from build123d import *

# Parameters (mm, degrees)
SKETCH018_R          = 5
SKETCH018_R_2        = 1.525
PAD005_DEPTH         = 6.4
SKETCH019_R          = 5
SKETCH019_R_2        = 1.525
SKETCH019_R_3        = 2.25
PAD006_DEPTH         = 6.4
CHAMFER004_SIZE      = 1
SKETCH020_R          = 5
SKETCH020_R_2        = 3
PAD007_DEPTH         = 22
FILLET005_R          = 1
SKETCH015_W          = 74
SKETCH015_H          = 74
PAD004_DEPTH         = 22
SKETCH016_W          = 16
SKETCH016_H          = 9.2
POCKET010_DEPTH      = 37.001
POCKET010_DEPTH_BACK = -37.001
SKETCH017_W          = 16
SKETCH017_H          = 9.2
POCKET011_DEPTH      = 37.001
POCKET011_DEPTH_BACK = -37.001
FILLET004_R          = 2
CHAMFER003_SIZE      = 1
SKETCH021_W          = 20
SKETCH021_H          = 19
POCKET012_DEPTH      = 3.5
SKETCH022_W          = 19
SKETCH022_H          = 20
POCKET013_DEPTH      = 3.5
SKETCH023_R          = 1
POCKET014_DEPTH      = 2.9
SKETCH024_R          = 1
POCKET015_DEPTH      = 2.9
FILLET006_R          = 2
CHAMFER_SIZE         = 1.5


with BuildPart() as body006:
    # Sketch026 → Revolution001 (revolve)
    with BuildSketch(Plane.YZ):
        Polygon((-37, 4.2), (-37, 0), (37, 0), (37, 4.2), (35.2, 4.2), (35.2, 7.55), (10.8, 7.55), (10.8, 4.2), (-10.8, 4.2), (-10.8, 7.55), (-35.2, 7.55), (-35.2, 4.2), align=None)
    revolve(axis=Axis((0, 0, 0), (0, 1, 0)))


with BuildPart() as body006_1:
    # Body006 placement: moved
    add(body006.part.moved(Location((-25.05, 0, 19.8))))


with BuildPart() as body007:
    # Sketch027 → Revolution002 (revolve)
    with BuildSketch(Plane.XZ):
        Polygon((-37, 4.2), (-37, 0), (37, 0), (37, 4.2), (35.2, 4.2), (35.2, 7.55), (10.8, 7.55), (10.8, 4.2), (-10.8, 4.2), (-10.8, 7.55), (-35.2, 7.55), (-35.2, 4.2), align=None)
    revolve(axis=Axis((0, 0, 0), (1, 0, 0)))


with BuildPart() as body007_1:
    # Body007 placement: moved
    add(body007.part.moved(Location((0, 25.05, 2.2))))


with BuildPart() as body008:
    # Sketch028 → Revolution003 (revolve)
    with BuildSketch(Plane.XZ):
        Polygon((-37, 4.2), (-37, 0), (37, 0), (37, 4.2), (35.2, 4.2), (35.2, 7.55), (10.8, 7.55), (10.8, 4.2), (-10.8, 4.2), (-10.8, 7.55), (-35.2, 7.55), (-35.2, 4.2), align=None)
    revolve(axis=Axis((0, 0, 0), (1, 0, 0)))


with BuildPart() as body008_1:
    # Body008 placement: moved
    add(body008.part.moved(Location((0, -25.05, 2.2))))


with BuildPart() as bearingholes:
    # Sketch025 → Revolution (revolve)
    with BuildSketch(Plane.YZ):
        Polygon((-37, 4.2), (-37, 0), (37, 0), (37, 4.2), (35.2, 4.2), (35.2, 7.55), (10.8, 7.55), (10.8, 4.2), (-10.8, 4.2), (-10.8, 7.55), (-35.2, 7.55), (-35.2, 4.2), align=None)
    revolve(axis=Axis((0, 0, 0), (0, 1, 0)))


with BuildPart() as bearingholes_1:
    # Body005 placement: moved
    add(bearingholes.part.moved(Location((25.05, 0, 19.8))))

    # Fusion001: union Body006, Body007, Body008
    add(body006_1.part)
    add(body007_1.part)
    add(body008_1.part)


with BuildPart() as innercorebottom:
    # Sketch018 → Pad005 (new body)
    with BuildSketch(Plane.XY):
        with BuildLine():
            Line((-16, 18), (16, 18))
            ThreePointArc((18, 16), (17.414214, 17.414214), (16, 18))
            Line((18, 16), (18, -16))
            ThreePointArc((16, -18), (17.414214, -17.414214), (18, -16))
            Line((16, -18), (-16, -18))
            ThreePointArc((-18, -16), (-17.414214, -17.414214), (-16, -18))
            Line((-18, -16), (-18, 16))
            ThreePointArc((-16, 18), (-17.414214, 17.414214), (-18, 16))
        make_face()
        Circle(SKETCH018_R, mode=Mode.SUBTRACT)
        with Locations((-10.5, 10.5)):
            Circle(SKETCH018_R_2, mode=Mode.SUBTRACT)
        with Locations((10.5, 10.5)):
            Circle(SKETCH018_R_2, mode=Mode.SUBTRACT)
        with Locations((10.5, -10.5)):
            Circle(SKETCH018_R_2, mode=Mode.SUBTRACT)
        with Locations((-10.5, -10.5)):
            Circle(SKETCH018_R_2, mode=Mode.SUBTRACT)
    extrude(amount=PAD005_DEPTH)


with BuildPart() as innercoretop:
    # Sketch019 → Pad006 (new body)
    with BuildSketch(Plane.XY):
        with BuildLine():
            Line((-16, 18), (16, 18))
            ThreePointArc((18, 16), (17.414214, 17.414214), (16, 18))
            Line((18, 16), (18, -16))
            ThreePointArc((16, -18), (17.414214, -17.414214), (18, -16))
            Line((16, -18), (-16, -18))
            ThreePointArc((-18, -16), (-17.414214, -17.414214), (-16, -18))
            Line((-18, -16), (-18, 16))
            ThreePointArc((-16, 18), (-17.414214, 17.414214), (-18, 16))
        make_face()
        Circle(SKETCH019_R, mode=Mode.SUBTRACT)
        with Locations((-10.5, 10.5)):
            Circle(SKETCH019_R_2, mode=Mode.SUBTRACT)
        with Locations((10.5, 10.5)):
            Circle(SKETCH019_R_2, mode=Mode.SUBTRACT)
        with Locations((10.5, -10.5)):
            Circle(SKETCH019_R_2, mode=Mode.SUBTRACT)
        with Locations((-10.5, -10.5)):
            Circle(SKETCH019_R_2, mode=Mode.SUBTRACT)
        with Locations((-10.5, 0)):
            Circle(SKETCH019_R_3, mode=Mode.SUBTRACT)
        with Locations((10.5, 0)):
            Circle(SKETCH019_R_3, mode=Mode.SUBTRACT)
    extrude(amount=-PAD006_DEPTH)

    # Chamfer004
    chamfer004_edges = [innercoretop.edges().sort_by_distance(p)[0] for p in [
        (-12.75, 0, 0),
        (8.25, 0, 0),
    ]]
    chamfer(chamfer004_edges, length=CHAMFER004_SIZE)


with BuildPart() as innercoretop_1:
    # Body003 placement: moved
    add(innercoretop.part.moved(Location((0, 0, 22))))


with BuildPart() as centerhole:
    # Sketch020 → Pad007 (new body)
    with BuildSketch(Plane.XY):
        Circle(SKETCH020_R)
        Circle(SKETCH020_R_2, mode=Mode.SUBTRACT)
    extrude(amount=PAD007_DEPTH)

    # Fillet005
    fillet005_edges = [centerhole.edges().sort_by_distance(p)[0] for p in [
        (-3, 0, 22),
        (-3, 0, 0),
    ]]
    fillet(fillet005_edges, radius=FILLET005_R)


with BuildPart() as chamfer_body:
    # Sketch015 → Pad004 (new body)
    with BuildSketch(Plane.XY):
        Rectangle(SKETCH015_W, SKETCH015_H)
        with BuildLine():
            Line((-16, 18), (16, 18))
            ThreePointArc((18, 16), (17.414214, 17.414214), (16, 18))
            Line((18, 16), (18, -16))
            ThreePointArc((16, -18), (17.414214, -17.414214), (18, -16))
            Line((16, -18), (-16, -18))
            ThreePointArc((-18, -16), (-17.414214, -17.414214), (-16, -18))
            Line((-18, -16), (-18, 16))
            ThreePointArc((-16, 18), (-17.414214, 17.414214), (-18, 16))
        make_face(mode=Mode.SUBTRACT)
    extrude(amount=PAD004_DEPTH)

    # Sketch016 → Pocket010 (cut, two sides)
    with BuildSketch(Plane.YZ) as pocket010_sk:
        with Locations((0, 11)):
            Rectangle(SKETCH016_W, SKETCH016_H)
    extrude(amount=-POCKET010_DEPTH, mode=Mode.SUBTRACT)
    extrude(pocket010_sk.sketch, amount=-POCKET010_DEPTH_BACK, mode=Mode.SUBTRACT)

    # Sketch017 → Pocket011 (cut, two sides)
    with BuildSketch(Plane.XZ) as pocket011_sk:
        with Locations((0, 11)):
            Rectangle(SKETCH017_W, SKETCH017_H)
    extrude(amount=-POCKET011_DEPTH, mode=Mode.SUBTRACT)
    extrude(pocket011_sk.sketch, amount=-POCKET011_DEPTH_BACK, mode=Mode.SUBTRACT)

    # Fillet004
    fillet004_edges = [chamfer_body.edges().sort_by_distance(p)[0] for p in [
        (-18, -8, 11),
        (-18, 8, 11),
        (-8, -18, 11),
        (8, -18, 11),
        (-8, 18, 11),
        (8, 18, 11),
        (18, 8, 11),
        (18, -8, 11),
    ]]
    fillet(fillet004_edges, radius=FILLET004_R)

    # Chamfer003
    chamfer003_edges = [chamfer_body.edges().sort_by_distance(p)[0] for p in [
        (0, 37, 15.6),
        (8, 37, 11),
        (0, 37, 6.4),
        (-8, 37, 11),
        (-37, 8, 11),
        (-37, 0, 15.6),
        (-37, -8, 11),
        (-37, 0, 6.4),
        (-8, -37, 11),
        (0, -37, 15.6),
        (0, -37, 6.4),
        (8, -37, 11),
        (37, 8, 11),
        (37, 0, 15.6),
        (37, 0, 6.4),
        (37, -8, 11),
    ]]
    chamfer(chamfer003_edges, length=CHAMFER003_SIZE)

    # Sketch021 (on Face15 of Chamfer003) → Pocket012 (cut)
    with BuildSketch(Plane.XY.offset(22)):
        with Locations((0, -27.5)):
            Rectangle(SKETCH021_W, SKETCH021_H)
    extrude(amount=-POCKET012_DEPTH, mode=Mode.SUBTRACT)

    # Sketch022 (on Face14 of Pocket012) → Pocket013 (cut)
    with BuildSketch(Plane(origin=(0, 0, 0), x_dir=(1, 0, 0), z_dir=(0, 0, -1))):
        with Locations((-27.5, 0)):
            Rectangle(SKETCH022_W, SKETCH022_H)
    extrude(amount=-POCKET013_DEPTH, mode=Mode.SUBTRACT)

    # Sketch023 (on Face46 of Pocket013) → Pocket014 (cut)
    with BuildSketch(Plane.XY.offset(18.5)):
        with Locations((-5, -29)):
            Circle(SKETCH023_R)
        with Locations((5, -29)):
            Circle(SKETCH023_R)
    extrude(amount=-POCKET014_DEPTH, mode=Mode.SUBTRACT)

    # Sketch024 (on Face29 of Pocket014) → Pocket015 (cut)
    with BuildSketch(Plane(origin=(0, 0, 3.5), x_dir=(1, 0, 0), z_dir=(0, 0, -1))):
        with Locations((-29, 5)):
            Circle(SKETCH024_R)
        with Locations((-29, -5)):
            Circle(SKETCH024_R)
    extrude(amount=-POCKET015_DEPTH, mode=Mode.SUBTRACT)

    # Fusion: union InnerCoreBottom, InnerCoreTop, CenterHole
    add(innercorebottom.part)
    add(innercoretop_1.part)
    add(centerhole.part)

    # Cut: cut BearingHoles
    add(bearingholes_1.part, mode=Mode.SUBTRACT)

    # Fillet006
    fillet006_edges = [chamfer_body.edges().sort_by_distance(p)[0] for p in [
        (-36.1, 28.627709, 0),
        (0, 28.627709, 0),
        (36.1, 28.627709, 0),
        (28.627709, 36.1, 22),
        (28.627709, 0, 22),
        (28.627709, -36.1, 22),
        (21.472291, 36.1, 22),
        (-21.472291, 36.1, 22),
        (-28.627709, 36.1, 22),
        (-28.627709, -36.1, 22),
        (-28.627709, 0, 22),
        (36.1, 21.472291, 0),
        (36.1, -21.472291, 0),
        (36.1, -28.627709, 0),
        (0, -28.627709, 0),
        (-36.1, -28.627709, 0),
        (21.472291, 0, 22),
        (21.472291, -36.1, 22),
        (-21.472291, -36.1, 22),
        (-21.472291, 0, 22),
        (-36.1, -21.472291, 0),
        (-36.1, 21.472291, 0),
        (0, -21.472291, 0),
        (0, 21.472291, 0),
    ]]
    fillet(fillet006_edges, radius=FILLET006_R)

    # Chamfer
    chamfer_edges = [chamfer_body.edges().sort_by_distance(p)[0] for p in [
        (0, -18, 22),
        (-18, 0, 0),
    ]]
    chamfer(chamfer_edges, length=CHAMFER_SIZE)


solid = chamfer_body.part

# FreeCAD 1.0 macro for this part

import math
import FreeCAD as App
import Part
import Sketcher

V = App.Vector


def edges_at(feature, points):
    """Names of the edges that pass closest to the given points."""
    edges = feature.Shape.Edges
    near = lambda p: min(range(len(edges)), key=lambda i: edges[i].distToShape(Part.Vertex(*p))[0])
    return sorted({f"Edge{near(p) + 1}" for p in points})


def add_polygon(sketch, points):
    """Adds a closed chain of lines whose ends are joined by coincident constraints."""
    first, n = sketch.GeometryCount, len(points)
    for a, b in zip(points, points[1:] + points[:1]):
        sketch.addGeometry(Part.LineSegment(App.Vector(*a, 0), App.Vector(*b, 0)), False)
    for i in range(n):
        sketch.addConstraint(Sketcher.Constraint("Coincident", first + i, 2, first + (i + 1) % n, 1))

doc = App.newDocument("Part")
params = doc.addObject("Spreadsheet::Sheet", "Params")
for row, (alias, value) in enumerate([
    ("sketch1_width", "74 mm"),
    ("sketch1_width2", "1.8 mm"),
    ("sketch1_width3", "24.4 mm"),
    ("sketch1_height", "4.2 mm"),
    ("sketch1_height2", "3.35 mm"),
    ("revolution_angle", "360 deg"),
    ("sketch2_width", "74 mm"),
    ("sketch2_width2", "1.8 mm"),
    ("sketch2_width3", "24.4 mm"),
    ("sketch2_height", "4.2 mm"),
    ("sketch2_height2", "3.35 mm"),
    ("revolution2_angle", "360 deg"),
    ("sketch3_width", "74 mm"),
    ("sketch3_width2", "1.8 mm"),
    ("sketch3_width3", "24.4 mm"),
    ("sketch3_height", "4.2 mm"),
    ("sketch3_height2", "3.35 mm"),
    ("revolution3_angle", "360 deg"),
    ("sketch4_width", "74 mm"),
    ("sketch4_width2", "1.8 mm"),
    ("sketch4_width3", "24.4 mm"),
    ("sketch4_height", "4.2 mm"),
    ("sketch4_height2", "3.35 mm"),
    ("revolution4_angle", "360 deg"),
    ("sketch5_diameter", "10 mm"),
    ("sketch5_radius", "1.999999 mm"),
    ("sketch5_diameter2", "3.05 mm"),
    ("sketch5_width", "32 mm"),
    ("pad1_length", "6.4 mm"),
    ("sketch6_diameter", "10 mm"),
    ("sketch6_radius", "1.999999 mm"),
    ("sketch6_diameter2", "4.5 mm"),
    ("sketch6_diameter3", "3.05 mm"),
    ("sketch6_width", "32 mm"),
    ("pad2_length", "6.4 mm"),
    ("chamfer_size", "1 mm"),
    ("sketch7_diameter", "10 mm"),
    ("sketch7_diameter2", "6 mm"),
    ("pad3_length", "22 mm"),
    ("fillet_radius", "1 mm"),
    ("sketch8_radius", "1.999999 mm"),
    ("sketch8_width", "74 mm"),
    ("sketch8_width2", "32 mm"),
    ("pad4_length", "22 mm"),
    ("sketch9_width", "16 mm"),
    ("sketch9_height", "9.2 mm"),
    ("sketch10_width", "16 mm"),
    ("sketch10_height", "9.2 mm"),
    ("fillet2_radius", "2 mm"),
    ("chamfer2_size", "1 mm"),
    ("sketch11_width", "20 mm"),
    ("sketch11_height", "19 mm"),
    ("pocket3_length", "3.5 mm"),
    ("sketch12_width", "19 mm"),
    ("sketch12_height", "20 mm"),
    ("pocket4_length", "3.5 mm"),
    ("sketch13_diameter", "2 mm"),
    ("pocket5_length", "2.9 mm"),
    ("sketch14_diameter", "2 mm"),
    ("pocket6_length", "2.9 mm"),
    ("fillet3_radius", "2 mm"),
    ("chamfer3_size", "1.5 mm"),
], start=1):
    params.set(f"A{row}", alias)
    params.set(f"B{row}", "=" + value)
    params.setAlias(f"B{row}", alias)

body = doc.addObject("PartDesign::Body", "Body")

sketch1 = doc.addObject("Sketcher::SketchObject", "Sketch")
body.addObject(sketch1)
sketch1.AttachmentSupport = (doc.YZ_Plane, [""])
sketch1.MapMode = "FlatFace"
add_polygon(sketch1, [(-37, 4.2), (-37, 0), (37, 0), (37, 4.2), (35.2, 4.2), (35.2, 7.5), (10.8, 7.5), (10.8, 4.2), (-10.8, 4.2), (-10.8, 7.5), (-35.2, 7.5), (-35.2, 4.2)])
sketch1.addConstraint(Sketcher.Constraint("Vertical", 0))
sketch1.addConstraint(Sketcher.Constraint("Horizontal", 1))
sketch1.addConstraint(Sketcher.Constraint("Vertical", 2))
sketch1.addConstraint(Sketcher.Constraint("Horizontal", 3))
sketch1.addConstraint(Sketcher.Constraint("Vertical", 4))
sketch1.addConstraint(Sketcher.Constraint("Horizontal", 5))
sketch1.addConstraint(Sketcher.Constraint("Vertical", 6))
sketch1.addConstraint(Sketcher.Constraint("Horizontal", 7))
sketch1.addConstraint(Sketcher.Constraint("Vertical", 8))
sketch1.addConstraint(Sketcher.Constraint("Horizontal", 9))
sketch1.addConstraint(Sketcher.Constraint("Vertical", 10))
sketch1.addConstraint(Sketcher.Constraint("Horizontal", 11))
sketch1.addConstraint(Sketcher.Constraint("Symmetric", 0, 2, 1, 2, -1, 1))
sketch1.addConstraint(Sketcher.Constraint("Symmetric", 5, 2, 8, 2, -2))
sketch1.addConstraint(Sketcher.Constraint("Symmetric", 3, 2, 10, 2, -2))
sketch1.addConstraint(Sketcher.Constraint("Horizontal", 3, 2, 6, 2))
sketch1.addConstraint(Sketcher.Constraint("DistanceX", 1, 1, 1, 2, 74.0))
sketch1.addConstraint(Sketcher.Constraint("DistanceX", 3, 2, 3, 1, 1.8))
sketch1.addConstraint(Sketcher.Constraint("DistanceX", 5, 2, 5, 1, 24.4))
sketch1.addConstraint(Sketcher.Constraint("DistanceY", 0, 2, 0, 1, 4.2))
sketch1.addConstraint(Sketcher.Constraint("DistanceY", 4, 1, 4, 2, 3.35))
sketch1.setExpression("Constraints[28]", "Params.sketch1_width")
sketch1.setExpression("Constraints[29]", "Params.sketch1_width2")
sketch1.setExpression("Constraints[30]", "Params.sketch1_width3")
sketch1.setExpression("Constraints[31]", "Params.sketch1_height")
sketch1.setExpression("Constraints[32]", "Params.sketch1_height2")
revolution = doc.addObject("PartDesign::Revolution", "Revolution")
body.addObject(revolution)
revolution.Profile = sketch1
revolution.ReferenceAxis = (sketch1, ["H_Axis"])
revolution.setExpression("Angle", "Params.revolution_angle")
body2 = doc.addObject("PartDesign::Body", "Body001")
doc.recompute()

body.Placement = App.Placement(V(-25.05, 0, 19.8), App.Rotation(V(0, 0, 1), 0))
boolean = doc.addObject("PartDesign::Boolean", "Boolean")
body2.addObject(boolean)
boolean.Type = "Fuse"
boolean.addObjects([body])
body3 = doc.addObject("PartDesign::Body", "Body002")

sketch2 = doc.addObject("Sketcher::SketchObject", "Sketch001")
body3.addObject(sketch2)
sketch2.AttachmentSupport = (doc.getObject("XZ_Plane002"), [""])
sketch2.MapMode = "FlatFace"
add_polygon(sketch2, [(-37, 4.2), (-37, 0), (37, 0), (37, 4.2), (35.2, 4.2), (35.2, 7.5), (10.8, 7.5), (10.8, 4.2), (-10.8, 4.2), (-10.8, 7.5), (-35.2, 7.5), (-35.2, 4.2)])
sketch2.addConstraint(Sketcher.Constraint("Vertical", 0))
sketch2.addConstraint(Sketcher.Constraint("Horizontal", 1))
sketch2.addConstraint(Sketcher.Constraint("Vertical", 2))
sketch2.addConstraint(Sketcher.Constraint("Horizontal", 3))
sketch2.addConstraint(Sketcher.Constraint("Vertical", 4))
sketch2.addConstraint(Sketcher.Constraint("Horizontal", 5))
sketch2.addConstraint(Sketcher.Constraint("Vertical", 6))
sketch2.addConstraint(Sketcher.Constraint("Horizontal", 7))
sketch2.addConstraint(Sketcher.Constraint("Vertical", 8))
sketch2.addConstraint(Sketcher.Constraint("Horizontal", 9))
sketch2.addConstraint(Sketcher.Constraint("Vertical", 10))
sketch2.addConstraint(Sketcher.Constraint("Horizontal", 11))
sketch2.addConstraint(Sketcher.Constraint("Symmetric", 0, 2, 1, 2, -1, 1))
sketch2.addConstraint(Sketcher.Constraint("Symmetric", 5, 2, 8, 2, -2))
sketch2.addConstraint(Sketcher.Constraint("Symmetric", 3, 2, 10, 2, -2))
sketch2.addConstraint(Sketcher.Constraint("Horizontal", 3, 2, 6, 2))
sketch2.addConstraint(Sketcher.Constraint("DistanceX", 1, 1, 1, 2, 74.0))
sketch2.addConstraint(Sketcher.Constraint("DistanceX", 3, 2, 3, 1, 1.8))
sketch2.addConstraint(Sketcher.Constraint("DistanceX", 5, 2, 5, 1, 24.4))
sketch2.addConstraint(Sketcher.Constraint("DistanceY", 0, 2, 0, 1, 4.2))
sketch2.addConstraint(Sketcher.Constraint("DistanceY", 4, 1, 4, 2, 3.35))
sketch2.setExpression("Constraints[28]", "Params.sketch2_width")
sketch2.setExpression("Constraints[29]", "Params.sketch2_width2")
sketch2.setExpression("Constraints[30]", "Params.sketch2_width3")
sketch2.setExpression("Constraints[31]", "Params.sketch2_height")
sketch2.setExpression("Constraints[32]", "Params.sketch2_height2")
revolution2 = doc.addObject("PartDesign::Revolution", "Revolution001")
body3.addObject(revolution2)
revolution2.Profile = sketch2
revolution2.ReferenceAxis = (sketch2, ["H_Axis"])
revolution2.setExpression("Angle", "Params.revolution2_angle")
body4 = doc.addObject("PartDesign::Body", "Body003")
doc.recompute()

body3.Placement = App.Placement(V(0, 25.05, 2.2), App.Rotation(V(0, 0, 1), 0))
boolean2 = doc.addObject("PartDesign::Boolean", "Boolean001")
body4.addObject(boolean2)
boolean2.Type = "Fuse"
boolean2.addObjects([body3])
body5 = doc.addObject("PartDesign::Body", "Body004")

sketch3 = doc.addObject("Sketcher::SketchObject", "Sketch002")
body5.addObject(sketch3)
sketch3.AttachmentSupport = (doc.getObject("XZ_Plane004"), [""])
sketch3.MapMode = "FlatFace"
add_polygon(sketch3, [(-37, 4.2), (-37, 0), (37, 0), (37, 4.2), (35.2, 4.2), (35.2, 7.5), (10.8, 7.5), (10.8, 4.2), (-10.8, 4.2), (-10.8, 7.5), (-35.2, 7.5), (-35.2, 4.2)])
sketch3.addConstraint(Sketcher.Constraint("Vertical", 0))
sketch3.addConstraint(Sketcher.Constraint("Horizontal", 1))
sketch3.addConstraint(Sketcher.Constraint("Vertical", 2))
sketch3.addConstraint(Sketcher.Constraint("Horizontal", 3))
sketch3.addConstraint(Sketcher.Constraint("Vertical", 4))
sketch3.addConstraint(Sketcher.Constraint("Horizontal", 5))
sketch3.addConstraint(Sketcher.Constraint("Vertical", 6))
sketch3.addConstraint(Sketcher.Constraint("Horizontal", 7))
sketch3.addConstraint(Sketcher.Constraint("Vertical", 8))
sketch3.addConstraint(Sketcher.Constraint("Horizontal", 9))
sketch3.addConstraint(Sketcher.Constraint("Vertical", 10))
sketch3.addConstraint(Sketcher.Constraint("Horizontal", 11))
sketch3.addConstraint(Sketcher.Constraint("Symmetric", 0, 2, 1, 2, -1, 1))
sketch3.addConstraint(Sketcher.Constraint("Symmetric", 5, 2, 8, 2, -2))
sketch3.addConstraint(Sketcher.Constraint("Symmetric", 3, 2, 10, 2, -2))
sketch3.addConstraint(Sketcher.Constraint("Horizontal", 3, 2, 6, 2))
sketch3.addConstraint(Sketcher.Constraint("DistanceX", 1, 1, 1, 2, 74.0))
sketch3.addConstraint(Sketcher.Constraint("DistanceX", 3, 2, 3, 1, 1.8))
sketch3.addConstraint(Sketcher.Constraint("DistanceX", 5, 2, 5, 1, 24.4))
sketch3.addConstraint(Sketcher.Constraint("DistanceY", 0, 2, 0, 1, 4.2))
sketch3.addConstraint(Sketcher.Constraint("DistanceY", 4, 1, 4, 2, 3.35))
sketch3.setExpression("Constraints[28]", "Params.sketch3_width")
sketch3.setExpression("Constraints[29]", "Params.sketch3_width2")
sketch3.setExpression("Constraints[30]", "Params.sketch3_width3")
sketch3.setExpression("Constraints[31]", "Params.sketch3_height")
sketch3.setExpression("Constraints[32]", "Params.sketch3_height2")
revolution3 = doc.addObject("PartDesign::Revolution", "Revolution002")
body5.addObject(revolution3)
revolution3.Profile = sketch3
revolution3.ReferenceAxis = (sketch3, ["H_Axis"])
revolution3.setExpression("Angle", "Params.revolution3_angle")
body6 = doc.addObject("PartDesign::Body", "Body005")
doc.recompute()

body5.Placement = App.Placement(V(0, -25.05, 2.2), App.Rotation(V(0, 0, 1), 0))
boolean3 = doc.addObject("PartDesign::Boolean", "Boolean002")
body6.addObject(boolean3)
boolean3.Type = "Fuse"
boolean3.addObjects([body5])
body7 = doc.addObject("PartDesign::Body", "Body006")

sketch4 = doc.addObject("Sketcher::SketchObject", "Sketch003")
body7.addObject(sketch4)
sketch4.AttachmentSupport = (doc.getObject("YZ_Plane006"), [""])
sketch4.MapMode = "FlatFace"
add_polygon(sketch4, [(-37, 4.2), (-37, 0), (37, 0), (37, 4.2), (35.2, 4.2), (35.2, 7.5), (10.8, 7.5), (10.8, 4.2), (-10.8, 4.2), (-10.8, 7.5), (-35.2, 7.5), (-35.2, 4.2)])
sketch4.addConstraint(Sketcher.Constraint("Vertical", 0))
sketch4.addConstraint(Sketcher.Constraint("Horizontal", 1))
sketch4.addConstraint(Sketcher.Constraint("Vertical", 2))
sketch4.addConstraint(Sketcher.Constraint("Horizontal", 3))
sketch4.addConstraint(Sketcher.Constraint("Vertical", 4))
sketch4.addConstraint(Sketcher.Constraint("Horizontal", 5))
sketch4.addConstraint(Sketcher.Constraint("Vertical", 6))
sketch4.addConstraint(Sketcher.Constraint("Horizontal", 7))
sketch4.addConstraint(Sketcher.Constraint("Vertical", 8))
sketch4.addConstraint(Sketcher.Constraint("Horizontal", 9))
sketch4.addConstraint(Sketcher.Constraint("Vertical", 10))
sketch4.addConstraint(Sketcher.Constraint("Horizontal", 11))
sketch4.addConstraint(Sketcher.Constraint("Symmetric", 0, 2, 1, 2, -1, 1))
sketch4.addConstraint(Sketcher.Constraint("Symmetric", 5, 2, 8, 2, -2))
sketch4.addConstraint(Sketcher.Constraint("Symmetric", 3, 2, 10, 2, -2))
sketch4.addConstraint(Sketcher.Constraint("Horizontal", 3, 2, 6, 2))
sketch4.addConstraint(Sketcher.Constraint("DistanceX", 1, 1, 1, 2, 74.0))
sketch4.addConstraint(Sketcher.Constraint("DistanceX", 3, 2, 3, 1, 1.8))
sketch4.addConstraint(Sketcher.Constraint("DistanceX", 5, 2, 5, 1, 24.4))
sketch4.addConstraint(Sketcher.Constraint("DistanceY", 0, 2, 0, 1, 4.2))
sketch4.addConstraint(Sketcher.Constraint("DistanceY", 4, 1, 4, 2, 3.35))
sketch4.setExpression("Constraints[28]", "Params.sketch4_width")
sketch4.setExpression("Constraints[29]", "Params.sketch4_width2")
sketch4.setExpression("Constraints[30]", "Params.sketch4_width3")
sketch4.setExpression("Constraints[31]", "Params.sketch4_height")
sketch4.setExpression("Constraints[32]", "Params.sketch4_height2")
revolution4 = doc.addObject("PartDesign::Revolution", "Revolution003")
body7.addObject(revolution4)
revolution4.Profile = sketch4
revolution4.ReferenceAxis = (sketch4, ["H_Axis"])
revolution4.setExpression("Angle", "Params.revolution4_angle")
body8 = doc.addObject("PartDesign::Body", "Body007")
body8.AllowCompound = True
doc.recompute()

body7.Placement = App.Placement(V(25.05, 0, 19.8), App.Rotation(V(0, 0, 1), 0))
boolean4 = doc.addObject("PartDesign::Boolean", "Boolean003")
body8.addObject(boolean4)
boolean4.Type = "Fuse"
boolean4.addObjects([body7])
doc.recompute()

boolean5 = doc.addObject("PartDesign::Boolean", "Boolean004")
body8.addObject(boolean5)
boolean5.Type = "Fuse"
boolean5.addObjects([body2])
doc.recompute()

boolean6 = doc.addObject("PartDesign::Boolean", "Boolean005")
body8.addObject(boolean6)
boolean6.Type = "Fuse"
boolean6.addObjects([body4])
doc.recompute()

boolean7 = doc.addObject("PartDesign::Boolean", "Boolean006")
body8.addObject(boolean7)
boolean7.Type = "Fuse"
boolean7.addObjects([body6])
body9 = doc.addObject("PartDesign::Body", "Body008")

sketch5 = doc.addObject("Sketcher::SketchObject", "Sketch004")
body9.addObject(sketch5)
sketch5.AttachmentSupport = (doc.getObject("XY_Plane008"), [""])
sketch5.MapMode = "FlatFace"
sketch5.addGeometry(Part.LineSegment(V(16, 18, 0), V(-16, 18, 0)), False)
sketch5.addGeometry(Part.ArcOfCircle(Part.Circle(V(-16, 16, 0), V(0, 0, 1), 2), math.radians(90), math.radians(180)), False)
sketch5.addGeometry(Part.LineSegment(V(-18, 16, 0), V(-18, -16, 0)), False)
sketch5.addGeometry(Part.ArcOfCircle(Part.Circle(V(-16, -16, 0), V(0, 0, 1), 2), math.radians(180), math.radians(270)), False)
sketch5.addGeometry(Part.LineSegment(V(-16, -18, 0), V(16, -18, 0)), False)
sketch5.addGeometry(Part.ArcOfCircle(Part.Circle(V(16, -16, 0), V(0, 0, 1), 2), math.radians(-90), math.radians(0)), False)
sketch5.addGeometry(Part.LineSegment(V(18, -16, 0), V(18, 16, 0)), False)
sketch5.addGeometry(Part.ArcOfCircle(Part.Circle(V(16, 16, 0), V(0, 0, 1), 2), math.radians(0), math.radians(90)), False)
sketch5.addGeometry(Part.Circle(V(10.5, -10.5, 0), V(0, 0, 1), 1.5), False)
sketch5.addGeometry(Part.Circle(V(0, 0, 0), V(0, 0, 1), 5), False)
sketch5.addGeometry(Part.Circle(V(-10.5, -10.5, 0), V(0, 0, 1), 1.5), False)
sketch5.addGeometry(Part.Circle(V(10.5, 10.5, 0), V(0, 0, 1), 1.5), False)
sketch5.addGeometry(Part.Circle(V(-10.5, 10.5, 0), V(0, 0, 1), 1.5), False)
sketch5.addConstraint(Sketcher.Constraint("Tangent", 0, 2, 1, 1))
sketch5.addConstraint(Sketcher.Constraint("Tangent", 1, 2, 2, 1))
sketch5.addConstraint(Sketcher.Constraint("Tangent", 2, 2, 3, 1))
sketch5.addConstraint(Sketcher.Constraint("Tangent", 3, 2, 4, 1))
sketch5.addConstraint(Sketcher.Constraint("Tangent", 4, 2, 5, 1))
sketch5.addConstraint(Sketcher.Constraint("Tangent", 5, 2, 6, 1))
sketch5.addConstraint(Sketcher.Constraint("Tangent", 6, 2, 7, 1))
sketch5.addConstraint(Sketcher.Constraint("Tangent", 7, 2, 0, 1))
sketch5.addConstraint(Sketcher.Constraint("Horizontal", 0))
sketch5.addConstraint(Sketcher.Constraint("Vertical", 2))
sketch5.addConstraint(Sketcher.Constraint("Horizontal", 4))
sketch5.addConstraint(Sketcher.Constraint("Vertical", 6))
sketch5.addConstraint(Sketcher.Constraint("Coincident", 9, 3, -1, 1))
sketch5.addConstraint(Sketcher.Constraint("Equal", 1, 3))
sketch5.addConstraint(Sketcher.Constraint("Equal", 3, 5))
sketch5.addConstraint(Sketcher.Constraint("Equal", 5, 7))
sketch5.addConstraint(Sketcher.Constraint("Equal", 8, 10))
sketch5.addConstraint(Sketcher.Constraint("Equal", 10, 11))
sketch5.addConstraint(Sketcher.Constraint("Equal", 11, 12))
sketch5.addConstraint(Sketcher.Constraint("Symmetric", 1, 3, 5, 3, -1, 1))
sketch5.addConstraint(Sketcher.Constraint("Symmetric", 10, 3, 11, 3, -1, 1))
sketch5.addConstraint(Sketcher.Constraint("Symmetric", 8, 3, 12, 3, -1, 1))
sketch5.addConstraint(Sketcher.Constraint("Symmetric", 8, 3, 10, 3, -2))
sketch5.addConstraint(Sketcher.Constraint("Equal", 4, 2))
sketch5.addConstraint(Sketcher.Constraint("Diameter", 9, 10.0))
sketch5.addConstraint(Sketcher.Constraint("Radius", 1, 1.999999))
sketch5.addConstraint(Sketcher.Constraint("Diameter", 8, 3.05))
sketch5.addConstraint(Sketcher.Constraint("DistanceX", 0, 2, 0, 1, 32.0))
sketch5.addConstraint(Sketcher.Constraint("DistanceX", 10, 3, 8, 3, 21.0))
sketch5.addConstraint(Sketcher.Constraint("DistanceY", 8, 3, 11, 3, 21.0))
sketch5.setExpression("Constraints[24]", "Params.sketch5_diameter")
sketch5.setExpression("Constraints[25]", "Params.sketch5_radius")
sketch5.setExpression("Constraints[26]", "Params.sketch5_diameter2")
sketch5.setExpression("Constraints[27]", "Params.sketch5_width")
pad1 = doc.addObject("PartDesign::Pad", "Pad")
body9.addObject(pad1)
pad1.Profile = sketch5
pad1.setExpression("Length", "Params.pad1_length")
body10 = doc.addObject("PartDesign::Body", "Body009")

sketch6 = doc.addObject("Sketcher::SketchObject", "Sketch005")
body10.addObject(sketch6)
sketch6.AttachmentSupport = (doc.getObject("XY_Plane009"), [""])
sketch6.MapMode = "FlatFace"
sketch6.addGeometry(Part.LineSegment(V(16, 18, 0), V(-16, 18, 0)), False)
sketch6.addGeometry(Part.ArcOfCircle(Part.Circle(V(-16, 16, 0), V(0, 0, 1), 2), math.radians(90), math.radians(180)), False)
sketch6.addGeometry(Part.LineSegment(V(-18, 16, 0), V(-18, -16, 0)), False)
sketch6.addGeometry(Part.ArcOfCircle(Part.Circle(V(-16, -16, 0), V(0, 0, 1), 2), math.radians(180), math.radians(270)), False)
sketch6.addGeometry(Part.LineSegment(V(-16, -18, 0), V(16, -18, 0)), False)
sketch6.addGeometry(Part.ArcOfCircle(Part.Circle(V(16, -16, 0), V(0, 0, 1), 2), math.radians(-90), math.radians(0)), False)
sketch6.addGeometry(Part.LineSegment(V(18, -16, 0), V(18, 16, 0)), False)
sketch6.addGeometry(Part.ArcOfCircle(Part.Circle(V(16, 16, 0), V(0, 0, 1), 2), math.radians(0), math.radians(90)), False)
sketch6.addGeometry(Part.Circle(V(10.5, -10.5, 0), V(0, 0, 1), 1.5), False)
sketch6.addGeometry(Part.Circle(V(10.5, 0, 0), V(0, 0, 1), 2.2), False)
sketch6.addGeometry(Part.Circle(V(-10.5, -10.5, 0), V(0, 0, 1), 1.5), False)
sketch6.addGeometry(Part.Circle(V(0, 0, 0), V(0, 0, 1), 5), False)
sketch6.addGeometry(Part.Circle(V(-10.5, 0, 0), V(0, 0, 1), 2.2), False)
sketch6.addGeometry(Part.Circle(V(10.5, 10.5, 0), V(0, 0, 1), 1.5), False)
sketch6.addGeometry(Part.Circle(V(-10.5, 10.5, 0), V(0, 0, 1), 1.5), False)
sketch6.addConstraint(Sketcher.Constraint("Tangent", 0, 2, 1, 1))
sketch6.addConstraint(Sketcher.Constraint("Tangent", 1, 2, 2, 1))
sketch6.addConstraint(Sketcher.Constraint("Tangent", 2, 2, 3, 1))
sketch6.addConstraint(Sketcher.Constraint("Tangent", 3, 2, 4, 1))
sketch6.addConstraint(Sketcher.Constraint("Tangent", 4, 2, 5, 1))
sketch6.addConstraint(Sketcher.Constraint("Tangent", 5, 2, 6, 1))
sketch6.addConstraint(Sketcher.Constraint("Tangent", 6, 2, 7, 1))
sketch6.addConstraint(Sketcher.Constraint("Tangent", 7, 2, 0, 1))
sketch6.addConstraint(Sketcher.Constraint("Horizontal", 0))
sketch6.addConstraint(Sketcher.Constraint("Vertical", 2))
sketch6.addConstraint(Sketcher.Constraint("Horizontal", 4))
sketch6.addConstraint(Sketcher.Constraint("Vertical", 6))
sketch6.addConstraint(Sketcher.Constraint("Coincident", 11, 3, -1, 1))
sketch6.addConstraint(Sketcher.Constraint("Equal", 1, 3))
sketch6.addConstraint(Sketcher.Constraint("Equal", 3, 5))
sketch6.addConstraint(Sketcher.Constraint("Equal", 5, 7))
sketch6.addConstraint(Sketcher.Constraint("Equal", 8, 10))
sketch6.addConstraint(Sketcher.Constraint("Equal", 9, 12))
sketch6.addConstraint(Sketcher.Constraint("Equal", 10, 13))
sketch6.addConstraint(Sketcher.Constraint("Equal", 13, 14))
sketch6.addConstraint(Sketcher.Constraint("Symmetric", 1, 3, 5, 3, -1, 1))
sketch6.addConstraint(Sketcher.Constraint("Symmetric", 9, 3, 12, 3, -1, 1))
sketch6.addConstraint(Sketcher.Constraint("Symmetric", 10, 3, 13, 3, -1, 1))
sketch6.addConstraint(Sketcher.Constraint("Symmetric", 8, 3, 14, 3, -1, 1))
sketch6.addConstraint(Sketcher.Constraint("Symmetric", 8, 3, 10, 3, -2))
sketch6.addConstraint(Sketcher.Constraint("PointOnObject", 9, 3, -1))
sketch6.addConstraint(Sketcher.Constraint("Vertical", 8, 3, 9, 3))
sketch6.addConstraint(Sketcher.Constraint("Equal", 4, 2))
sketch6.addConstraint(Sketcher.Constraint("Diameter", 11, 10.0))
sketch6.addConstraint(Sketcher.Constraint("Radius", 1, 1.999999))
sketch6.addConstraint(Sketcher.Constraint("Diameter", 9, 4.5))
sketch6.addConstraint(Sketcher.Constraint("Diameter", 8, 3.05))
sketch6.addConstraint(Sketcher.Constraint("DistanceX", 0, 2, 0, 1, 32.0))
sketch6.addConstraint(Sketcher.Constraint("DistanceX", 10, 3, 8, 3, 21.0))
sketch6.addConstraint(Sketcher.Constraint("DistanceY", 8, 3, 13, 3, 21.0))
sketch6.setExpression("Constraints[28]", "Params.sketch6_diameter")
sketch6.setExpression("Constraints[29]", "Params.sketch6_radius")
sketch6.setExpression("Constraints[30]", "Params.sketch6_diameter2")
sketch6.setExpression("Constraints[31]", "Params.sketch6_diameter3")
sketch6.setExpression("Constraints[32]", "Params.sketch6_width")
pad2 = doc.addObject("PartDesign::Pad", "Pad001")
body10.addObject(pad2)
pad2.Profile = sketch6
pad2.setExpression("Length", "Params.pad2_length")
pad2.Reversed = True
doc.recompute()

chamfer = doc.addObject("PartDesign::Chamfer", "Chamfer")
body10.addObject(chamfer)
chamfer.Base = (pad2, edges_at(pad2, [(-12.75, 0, 0), (8.25, 0, 0)]))
chamfer.setExpression("Size", "Params.chamfer_size")
body11 = doc.addObject("PartDesign::Body", "Body010")
doc.recompute()

body10.Placement = App.Placement(V(0, 0, 22), App.Rotation(V(0, 0, 1), 0))
boolean8 = doc.addObject("PartDesign::Boolean", "Boolean007")
body11.addObject(boolean8)
boolean8.Type = "Fuse"
boolean8.addObjects([body10])
body12 = doc.addObject("PartDesign::Body", "Body011")

sketch7 = doc.addObject("Sketcher::SketchObject", "Sketch006")
body12.addObject(sketch7)
sketch7.AttachmentSupport = (doc.getObject("XY_Plane011"), [""])
sketch7.MapMode = "FlatFace"
sketch7.addGeometry(Part.Circle(V(0, 0, 0), V(0, 0, 1), 5), False)
sketch7.addGeometry(Part.Circle(V(0, 0, 0), V(0, 0, 1), 3), False)
sketch7.addConstraint(Sketcher.Constraint("Coincident", 0, 3, -1, 1))
sketch7.addConstraint(Sketcher.Constraint("Coincident", 1, 3, -1, 1))
sketch7.addConstraint(Sketcher.Constraint("Diameter", 0, 10.0))
sketch7.addConstraint(Sketcher.Constraint("Diameter", 1, 6.0))
sketch7.setExpression("Constraints[2]", "Params.sketch7_diameter")
sketch7.setExpression("Constraints[3]", "Params.sketch7_diameter2")
pad3 = doc.addObject("PartDesign::Pad", "Pad002")
body12.addObject(pad3)
pad3.Profile = sketch7
pad3.setExpression("Length", "Params.pad3_length")
doc.recompute()

fillet = doc.addObject("PartDesign::Fillet", "Fillet")
body12.addObject(fillet)
fillet.Base = (pad3, edges_at(pad3, [(-3, 0, 22), (-3, 0, 0)]))
fillet.setExpression("Radius", "Params.fillet_radius")
body13 = doc.addObject("PartDesign::Body", "Body012")

sketch8 = doc.addObject("Sketcher::SketchObject", "Sketch007")
body13.addObject(sketch8)
sketch8.AttachmentSupport = (doc.getObject("XY_Plane012"), [""])
sketch8.MapMode = "FlatFace"
add_polygon(sketch8, [(-37, 37), (-37, -37), (37, -37), (37, 37)])
sketch8.addGeometry(Part.ArcOfCircle(Part.Circle(V(-16, 16, 0), V(0, 0, 1), 2), math.radians(90), math.radians(180)), False)
sketch8.addGeometry(Part.LineSegment(V(-16, 18, 0), V(16, 18, 0)), False)
sketch8.addGeometry(Part.ArcOfCircle(Part.Circle(V(16, 16, 0), V(0, 0, 1), 2), math.radians(0), math.radians(90)), False)
sketch8.addGeometry(Part.LineSegment(V(18, 16, 0), V(18, -16, 0)), False)
sketch8.addGeometry(Part.ArcOfCircle(Part.Circle(V(16, -16, 0), V(0, 0, 1), 2), math.radians(-90), math.radians(0)), False)
sketch8.addGeometry(Part.LineSegment(V(16, -18, 0), V(-16, -18, 0)), False)
sketch8.addGeometry(Part.ArcOfCircle(Part.Circle(V(-16, -16, 0), V(0, 0, 1), 2), math.radians(180), math.radians(270)), False)
sketch8.addGeometry(Part.LineSegment(V(-18, -16, 0), V(-18, 16, 0)), False)
sketch8.addConstraint(Sketcher.Constraint("Tangent", 4, 1, 5, 1))
sketch8.addConstraint(Sketcher.Constraint("Tangent", 5, 2, 6, 2))
sketch8.addConstraint(Sketcher.Constraint("Tangent", 6, 1, 7, 1))
sketch8.addConstraint(Sketcher.Constraint("Tangent", 7, 2, 8, 2))
sketch8.addConstraint(Sketcher.Constraint("Tangent", 8, 1, 9, 1))
sketch8.addConstraint(Sketcher.Constraint("Tangent", 9, 2, 10, 2))
sketch8.addConstraint(Sketcher.Constraint("Tangent", 10, 1, 11, 1))
sketch8.addConstraint(Sketcher.Constraint("Tangent", 11, 2, 4, 2))
sketch8.addConstraint(Sketcher.Constraint("Vertical", 0))
sketch8.addConstraint(Sketcher.Constraint("Horizontal", 1))
sketch8.addConstraint(Sketcher.Constraint("Vertical", 2))
sketch8.addConstraint(Sketcher.Constraint("Horizontal", 3))
sketch8.addConstraint(Sketcher.Constraint("Horizontal", 5))
sketch8.addConstraint(Sketcher.Constraint("Vertical", 7))
sketch8.addConstraint(Sketcher.Constraint("Horizontal", 9))
sketch8.addConstraint(Sketcher.Constraint("Vertical", 11))
sketch8.addConstraint(Sketcher.Constraint("Equal", 4, 6))
sketch8.addConstraint(Sketcher.Constraint("Equal", 6, 8))
sketch8.addConstraint(Sketcher.Constraint("Equal", 8, 10))
sketch8.addConstraint(Sketcher.Constraint("Symmetric", 4, 3, 8, 3, -1, 1))
sketch8.addConstraint(Sketcher.Constraint("Symmetric", 0, 2, 2, 2, -1, 1))
sketch8.addConstraint(Sketcher.Constraint("Equal", 3, 0))
sketch8.addConstraint(Sketcher.Constraint("Equal", 9, 7))
sketch8.addConstraint(Sketcher.Constraint("Radius", 4, 1.999999))
sketch8.addConstraint(Sketcher.Constraint("DistanceX", 1, 1, 1, 2, 74.0))
sketch8.addConstraint(Sketcher.Constraint("DistanceX", 5, 1, 5, 2, 32.0))
sketch8.setExpression("Constraints[27]", "Params.sketch8_radius")
sketch8.setExpression("Constraints[28]", "Params.sketch8_width")
sketch8.setExpression("Constraints[29]", "Params.sketch8_width2")
pad4 = doc.addObject("PartDesign::Pad", "Pad003")
body13.addObject(pad4)
pad4.Profile = sketch8
pad4.setExpression("Length", "Params.pad4_length")

sketch9 = doc.addObject("Sketcher::SketchObject", "Sketch008")
body13.addObject(sketch9)
sketch9.AttachmentSupport = (doc.getObject("YZ_Plane012"), [""])
sketch9.MapMode = "FlatFace"
add_polygon(sketch9, [(-8, 16), (-8, 6), (8, 6), (8, 16)])
sketch9.addConstraint(Sketcher.Constraint("Vertical", 0))
sketch9.addConstraint(Sketcher.Constraint("Horizontal", 1))
sketch9.addConstraint(Sketcher.Constraint("Vertical", 2))
sketch9.addConstraint(Sketcher.Constraint("Horizontal", 3))
sketch9.addConstraint(Sketcher.Constraint("DistanceX", 1, 1, 1, 2, 16.0))
sketch9.addConstraint(Sketcher.Constraint("DistanceY", 0, 2, 0, 1, 9.2))
sketch9.addConstraint(Sketcher.Constraint("DistanceX", 0, 2, -1, 1, 8.0))
sketch9.addConstraint(Sketcher.Constraint("DistanceY", -1, 1, 0, 2, 6.4))
sketch9.setExpression("Constraints[8]", "Params.sketch9_width")
sketch9.setExpression("Constraints[9]", "Params.sketch9_height")
pocket1 = doc.addObject("PartDesign::Pocket", "Pocket")
body13.addObject(pocket1)
pocket1.Profile = sketch9
pocket1.Type = "ThroughAll"
pocket1.Midplane = True

sketch10 = doc.addObject("Sketcher::SketchObject", "Sketch009")
body13.addObject(sketch10)
sketch10.AttachmentSupport = (doc.getObject("XZ_Plane012"), [""])
sketch10.MapMode = "FlatFace"
add_polygon(sketch10, [(-8, 16), (-8, 6), (8, 6), (8, 16)])
sketch10.addConstraint(Sketcher.Constraint("Vertical", 0))
sketch10.addConstraint(Sketcher.Constraint("Horizontal", 1))
sketch10.addConstraint(Sketcher.Constraint("Vertical", 2))
sketch10.addConstraint(Sketcher.Constraint("Horizontal", 3))
sketch10.addConstraint(Sketcher.Constraint("DistanceX", 1, 1, 1, 2, 16.0))
sketch10.addConstraint(Sketcher.Constraint("DistanceY", 0, 2, 0, 1, 9.2))
sketch10.addConstraint(Sketcher.Constraint("DistanceX", 0, 2, -1, 1, 8.0))
sketch10.addConstraint(Sketcher.Constraint("DistanceY", -1, 1, 0, 2, 6.4))
sketch10.setExpression("Constraints[8]", "Params.sketch10_width")
sketch10.setExpression("Constraints[9]", "Params.sketch10_height")
pocket2 = doc.addObject("PartDesign::Pocket", "Pocket001")
body13.addObject(pocket2)
pocket2.Profile = sketch10
pocket2.Type = "ThroughAll"
pocket2.Midplane = True
doc.recompute()

fillet2 = doc.addObject("PartDesign::Fillet", "Fillet001")
body13.addObject(fillet2)
fillet2.Base = (pocket2, edges_at(pocket2, [
    (-18, -8, 11),
    (-18, 8, 11),
    (-8, -18, 11),
    (8, -18, 11),
    (-8, 18, 11),
    (8, 18, 11),
    (18, 8, 11),
    (18, -8, 11),
]))
fillet2.setExpression("Radius", "Params.fillet2_radius")
doc.recompute()

chamfer2 = doc.addObject("PartDesign::Chamfer", "Chamfer001")
body13.addObject(chamfer2)
chamfer2.Base = (fillet2, edges_at(fillet2, [
    (0, 37, 15.6),
    (8, 37, 11),
    (0, 37, 6.4),
    (-8, 37, 11),
    (-37, 8, 11),
    (-37, 0, 15.6),
    (-37, -8, 11),
    (-37, 0, 6.4),
    (-8, -37, 11),
    (0, -37, 15.6),
    (0, -37, 6.4),
    (8, -37, 11),
    (37, 8, 11),
    (37, 0, 15.6),
    (37, 0, 6.4),
    (37, -8, 11),
]))
chamfer2.setExpression("Size", "Params.chamfer2_size")

sketch11 = doc.addObject("Sketcher::SketchObject", "Sketch010")
body13.addObject(sketch11)
sketch11.AttachmentSupport = (doc.getObject("XY_Plane012"), [""])
sketch11.MapMode = "FlatFace"
sketch11.AttachmentOffset = App.Placement(V(0, 0, 22), App.Rotation())
add_polygon(sketch11, [(-10, -18), (-10, -37), (10, -37), (10, -18)])
sketch11.addConstraint(Sketcher.Constraint("Vertical", 0))
sketch11.addConstraint(Sketcher.Constraint("Horizontal", 1))
sketch11.addConstraint(Sketcher.Constraint("Vertical", 2))
sketch11.addConstraint(Sketcher.Constraint("Horizontal", 3))
sketch11.addConstraint(Sketcher.Constraint("DistanceX", 1, 1, 1, 2, 20.0))
sketch11.addConstraint(Sketcher.Constraint("DistanceY", 0, 2, 0, 1, 19.0))
sketch11.addConstraint(Sketcher.Constraint("DistanceX", 0, 2, -1, 1, 10.0))
sketch11.addConstraint(Sketcher.Constraint("DistanceY", 0, 2, -1, 1, 37.0))
sketch11.setExpression("Constraints[8]", "Params.sketch11_width")
sketch11.setExpression("Constraints[9]", "Params.sketch11_height")
pocket3 = doc.addObject("PartDesign::Pocket", "Pocket002")
body13.addObject(pocket3)
pocket3.Profile = sketch11
pocket3.setExpression("Length", "Params.pocket3_length")

sketch12 = doc.addObject("Sketcher::SketchObject", "Sketch011")
body13.addObject(sketch12)
sketch12.AttachmentSupport = (doc.getObject("XY_Plane012"), [""])
sketch12.MapMode = "FlatFace"
add_polygon(sketch12, [(-37, -10), (-37, 10), (-18, 10), (-18, -10)])
sketch12.addConstraint(Sketcher.Constraint("Vertical", 0))
sketch12.addConstraint(Sketcher.Constraint("Horizontal", 1))
sketch12.addConstraint(Sketcher.Constraint("Vertical", 2))
sketch12.addConstraint(Sketcher.Constraint("Horizontal", 3))
sketch12.addConstraint(Sketcher.Constraint("DistanceX", 1, 1, 1, 2, 19.0))
sketch12.addConstraint(Sketcher.Constraint("DistanceY", 0, 1, 0, 2, 20.0))
sketch12.addConstraint(Sketcher.Constraint("DistanceX", 0, 2, -1, 1, 37.0))
sketch12.addConstraint(Sketcher.Constraint("DistanceY", -1, 1, 0, 2, 10.0))
sketch12.setExpression("Constraints[8]", "Params.sketch12_width")
sketch12.setExpression("Constraints[9]", "Params.sketch12_height")
pocket4 = doc.addObject("PartDesign::Pocket", "Pocket003")
body13.addObject(pocket4)
pocket4.Profile = sketch12
pocket4.setExpression("Length", "Params.pocket4_length")
pocket4.Reversed = True

sketch13 = doc.addObject("Sketcher::SketchObject", "Sketch012")
body13.addObject(sketch13)
sketch13.AttachmentSupport = (doc.getObject("XY_Plane012"), [""])
sketch13.MapMode = "FlatFace"
sketch13.AttachmentOffset = App.Placement(V(0, 0, 18.5), App.Rotation())
sketch13.addGeometry(Part.Circle(V(-5, -29, 0), V(0, 0, 1), 1), False)
sketch13.addGeometry(Part.Circle(V(5, -29, 0), V(0, 0, 1), 1), False)
sketch13.addConstraint(Sketcher.Constraint("Equal", 0, 1))
sketch13.addConstraint(Sketcher.Constraint("Symmetric", 0, 3, 1, 3, -2))
sketch13.addConstraint(Sketcher.Constraint("Diameter", 0, 2.0))
sketch13.addConstraint(Sketcher.Constraint("DistanceX", 0, 3, -1, 1, 5.0))
sketch13.addConstraint(Sketcher.Constraint("DistanceY", 0, 3, -1, 1, 29.0))
sketch13.setExpression("Constraints[2]", "Params.sketch13_diameter")
pocket5 = doc.addObject("PartDesign::Pocket", "Pocket004")
body13.addObject(pocket5)
pocket5.Profile = sketch13
pocket5.setExpression("Length", "Params.pocket5_length")

sketch14 = doc.addObject("Sketcher::SketchObject", "Sketch013")
body13.addObject(sketch14)
sketch14.AttachmentSupport = (doc.getObject("XY_Plane012"), [""])
sketch14.MapMode = "FlatFace"
sketch14.AttachmentOffset = App.Placement(V(0, 0, 3.5), App.Rotation())
sketch14.addGeometry(Part.Circle(V(-29, -5, 0), V(0, 0, 1), 1), False)
sketch14.addGeometry(Part.Circle(V(-29, 5, 0), V(0, 0, 1), 1), False)
sketch14.addConstraint(Sketcher.Constraint("Equal", 0, 1))
sketch14.addConstraint(Sketcher.Constraint("Symmetric", 0, 3, 1, 3, -1))
sketch14.addConstraint(Sketcher.Constraint("Diameter", 0, 2.0))
sketch14.addConstraint(Sketcher.Constraint("DistanceX", 0, 3, -1, 1, 29.0))
sketch14.addConstraint(Sketcher.Constraint("DistanceY", 0, 3, -1, 1, 5.0))
sketch14.setExpression("Constraints[2]", "Params.sketch14_diameter")
pocket6 = doc.addObject("PartDesign::Pocket", "Pocket005")
body13.addObject(pocket6)
pocket6.Profile = sketch14
pocket6.setExpression("Length", "Params.pocket6_length")
pocket6.Reversed = True
doc.recompute()

boolean9 = doc.addObject("PartDesign::Boolean", "Boolean008")
body13.addObject(boolean9)
boolean9.Type = "Fuse"
boolean9.addObjects([body9])
doc.recompute()

boolean10 = doc.addObject("PartDesign::Boolean", "Boolean009")
body13.addObject(boolean10)
boolean10.Type = "Fuse"
boolean10.addObjects([body11])
doc.recompute()

boolean11 = doc.addObject("PartDesign::Boolean", "Boolean010")
body13.addObject(boolean11)
boolean11.Type = "Fuse"
boolean11.addObjects([body12])
doc.recompute()

boolean12 = doc.addObject("PartDesign::Boolean", "Boolean011")
body13.addObject(boolean12)
boolean12.Type = "Cut"
boolean12.addObjects([body8])
doc.recompute()

fillet3 = doc.addObject("PartDesign::Fillet", "Fillet002")
body13.addObject(fillet3)
fillet3.Base = (boolean12, edges_at(boolean12, [
    (-36.1, 28.628, 0),
    (0, 28.628, 0),
    (36.1, 28.628, 0),
    (28.628, 36.1, 22),
    (28.628, 0, 22),
    (28.628, -36.1, 22),
    (21.472, 36.1, 22),
    (-21.472, 36.1, 22),
    (-28.628, 36.1, 22),
    (-28.628, -36.1, 22),
    (-28.628, 0, 22),
    (36.1, 21.472, 0),
    (36.1, -21.472, 0),
    (36.1, -28.628, 0),
    (0, -28.628, 0),
    (-36.1, -28.628, 0),
    (21.472, 0, 22),
    (21.472, -36.1, 22),
    (-21.472, -36.1, 22),
    (-21.472, 0, 22),
    (-36.1, -21.472, 0),
    (-36.1, 21.472, 0),
    (0, -21.472, 0),
    (0, 21.472, 0),
]))
fillet3.setExpression("Radius", "Params.fillet3_radius")
doc.recompute()

chamfer3 = doc.addObject("PartDesign::Chamfer", "Chamfer002")
body13.addObject(chamfer3)
chamfer3.Base = (fillet3, edges_at(fillet3, [(0, -18, 22), (-18, 0, 0)]))
chamfer3.setExpression("Size", "Params.chamfer3_size")

doc.recompute()
